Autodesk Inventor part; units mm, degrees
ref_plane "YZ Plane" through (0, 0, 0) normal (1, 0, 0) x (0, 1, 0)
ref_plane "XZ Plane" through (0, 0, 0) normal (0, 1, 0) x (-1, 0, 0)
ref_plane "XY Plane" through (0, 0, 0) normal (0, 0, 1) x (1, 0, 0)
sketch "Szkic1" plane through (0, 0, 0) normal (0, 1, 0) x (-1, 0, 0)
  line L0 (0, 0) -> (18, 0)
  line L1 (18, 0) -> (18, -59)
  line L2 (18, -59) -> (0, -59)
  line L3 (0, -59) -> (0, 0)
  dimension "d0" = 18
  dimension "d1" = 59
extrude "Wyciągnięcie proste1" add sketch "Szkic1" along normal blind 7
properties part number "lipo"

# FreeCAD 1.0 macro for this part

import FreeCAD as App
import Part
import Sketcher
from FreeCAD import Vector

doc = App.newDocument("Part")
body = doc.addObject("PartDesign::Body", "Body")

sketch1 = doc.addObject("Sketcher::SketchObject", "Sketch")
body.addObject(sketch1)
sketch1.AttachmentSupport = (doc.XZ_Plane, [""])
sketch1.MapMode = "FlatFace"
sketch1.addGeometry(Part.LineSegment(Vector(-18, 0, 0), Vector(0, 0, 0)), False)
sketch1.addGeometry(Part.LineSegment(Vector(0, 0, 0), Vector(0, -59, 0)), False)
sketch1.addGeometry(Part.LineSegment(Vector(0, -59, 0), Vector(-18, -59, 0)), False)
sketch1.addGeometry(Part.LineSegment(Vector(-18, -59, 0), Vector(-18, 0, 0)), False)
sketch1.addConstraint(Sketcher.Constraint("Coincident", 0, 2, 1, 1))
sketch1.addConstraint(Sketcher.Constraint("Coincident", 1, 2, 2, 1))
sketch1.addConstraint(Sketcher.Constraint("Coincident", 2, 2, 3, 1))
sketch1.addConstraint(Sketcher.Constraint("Coincident", 3, 2, 0, 1))
sketch1.addConstraint(Sketcher.Constraint("Horizontal", 0))
sketch1.addConstraint(Sketcher.Constraint("Vertical", 1))
sketch1.addConstraint(Sketcher.Constraint("Horizontal", 2))
sketch1.addConstraint(Sketcher.Constraint("Vertical", 3))
sketch1.addConstraint(Sketcher.Constraint("Coincident", 0, 2, -1, 1))
sketch1.addConstraint(Sketcher.Constraint("DistanceX", 0, 1, 0, 2, 18.0))
sketch1.addConstraint(Sketcher.Constraint("DistanceY", 1, 2, 1, 1, 59.0))
pad1 = doc.addObject("PartDesign::Pad", "Pad")
body.addObject(pad1)
pad1.Profile = sketch1
pad1.Length = 7
pad1.Reversed = True

doc.recompute()
